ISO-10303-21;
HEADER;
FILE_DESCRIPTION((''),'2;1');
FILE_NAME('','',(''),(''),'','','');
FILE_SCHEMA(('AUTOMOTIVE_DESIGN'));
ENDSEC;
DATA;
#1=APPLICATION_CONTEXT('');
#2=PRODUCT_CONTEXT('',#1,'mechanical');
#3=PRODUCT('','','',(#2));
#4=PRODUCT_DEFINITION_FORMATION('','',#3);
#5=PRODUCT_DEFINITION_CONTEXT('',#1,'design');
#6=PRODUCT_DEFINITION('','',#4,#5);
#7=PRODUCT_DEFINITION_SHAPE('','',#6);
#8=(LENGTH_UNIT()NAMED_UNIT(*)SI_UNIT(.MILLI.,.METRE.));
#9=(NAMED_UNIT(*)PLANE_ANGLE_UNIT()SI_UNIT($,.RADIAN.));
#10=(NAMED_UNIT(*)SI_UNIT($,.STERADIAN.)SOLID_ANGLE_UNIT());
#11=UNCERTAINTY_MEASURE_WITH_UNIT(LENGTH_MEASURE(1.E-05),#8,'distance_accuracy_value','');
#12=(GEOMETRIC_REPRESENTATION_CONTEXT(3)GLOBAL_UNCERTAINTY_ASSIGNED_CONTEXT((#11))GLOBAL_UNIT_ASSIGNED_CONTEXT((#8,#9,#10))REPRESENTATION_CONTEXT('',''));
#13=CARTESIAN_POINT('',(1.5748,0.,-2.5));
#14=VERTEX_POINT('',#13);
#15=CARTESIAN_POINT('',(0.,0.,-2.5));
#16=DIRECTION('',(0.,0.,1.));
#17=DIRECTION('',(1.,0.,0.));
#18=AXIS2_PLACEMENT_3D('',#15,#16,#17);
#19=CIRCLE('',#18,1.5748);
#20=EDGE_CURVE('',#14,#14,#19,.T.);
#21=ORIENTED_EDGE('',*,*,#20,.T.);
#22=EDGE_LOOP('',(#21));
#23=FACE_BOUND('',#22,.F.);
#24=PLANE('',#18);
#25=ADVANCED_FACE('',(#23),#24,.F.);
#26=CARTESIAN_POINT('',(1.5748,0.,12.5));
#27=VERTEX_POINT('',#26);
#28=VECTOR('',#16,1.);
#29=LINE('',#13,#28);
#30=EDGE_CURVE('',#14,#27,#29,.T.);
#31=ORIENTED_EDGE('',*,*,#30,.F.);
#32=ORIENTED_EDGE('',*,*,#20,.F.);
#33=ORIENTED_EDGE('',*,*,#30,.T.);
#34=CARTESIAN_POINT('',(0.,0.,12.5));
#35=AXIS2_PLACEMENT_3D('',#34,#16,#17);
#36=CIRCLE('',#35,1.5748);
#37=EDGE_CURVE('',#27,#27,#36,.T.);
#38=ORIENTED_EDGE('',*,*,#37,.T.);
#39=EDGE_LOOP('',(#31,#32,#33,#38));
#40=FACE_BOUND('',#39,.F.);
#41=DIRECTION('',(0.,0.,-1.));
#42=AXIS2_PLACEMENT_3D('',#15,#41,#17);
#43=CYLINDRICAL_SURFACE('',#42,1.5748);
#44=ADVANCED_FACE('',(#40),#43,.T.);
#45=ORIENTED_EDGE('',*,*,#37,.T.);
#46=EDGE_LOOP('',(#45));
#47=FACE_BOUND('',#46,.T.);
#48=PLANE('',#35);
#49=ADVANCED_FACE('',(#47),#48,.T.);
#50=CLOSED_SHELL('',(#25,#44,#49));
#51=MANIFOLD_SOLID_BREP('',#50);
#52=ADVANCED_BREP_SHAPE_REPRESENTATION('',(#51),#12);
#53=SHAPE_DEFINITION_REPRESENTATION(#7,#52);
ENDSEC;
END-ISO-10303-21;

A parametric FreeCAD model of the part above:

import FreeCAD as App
import Part
import Sketcher
from FreeCAD import Vector
Q = App.Units.Quantity

doc = App.newDocument("Part")
body = doc.addObject("PartDesign::Body", "Body")

# Sketch on XY plane
sketch1 = body.newObject("Sketcher::SketchObject", "Sketch")
sketch1.AttachmentSupport = (doc.getObject("XY_Plane"), [""])
sketch1.MapMode = "FlatFace"
sketch1.AttachmentOffset = App.Placement(Vector(0, 0, -2.5), App.Rotation())
sketch1.addGeometry(Part.Circle(Vector(0, 0, 0), Vector(0, 0, 1), 1.5748), False)
sketch1.addConstraint([
    Sketcher.Constraint("Coincident", 0, 3, -1, 1),
    Sketcher.Constraint("Diameter", 0, Q("3.1496 mm")),
])
pad1 = body.newObject("PartDesign::Pad", "Pad")
pad1.Profile = sketch1
pad1.Length = 15

doc.recompute()
